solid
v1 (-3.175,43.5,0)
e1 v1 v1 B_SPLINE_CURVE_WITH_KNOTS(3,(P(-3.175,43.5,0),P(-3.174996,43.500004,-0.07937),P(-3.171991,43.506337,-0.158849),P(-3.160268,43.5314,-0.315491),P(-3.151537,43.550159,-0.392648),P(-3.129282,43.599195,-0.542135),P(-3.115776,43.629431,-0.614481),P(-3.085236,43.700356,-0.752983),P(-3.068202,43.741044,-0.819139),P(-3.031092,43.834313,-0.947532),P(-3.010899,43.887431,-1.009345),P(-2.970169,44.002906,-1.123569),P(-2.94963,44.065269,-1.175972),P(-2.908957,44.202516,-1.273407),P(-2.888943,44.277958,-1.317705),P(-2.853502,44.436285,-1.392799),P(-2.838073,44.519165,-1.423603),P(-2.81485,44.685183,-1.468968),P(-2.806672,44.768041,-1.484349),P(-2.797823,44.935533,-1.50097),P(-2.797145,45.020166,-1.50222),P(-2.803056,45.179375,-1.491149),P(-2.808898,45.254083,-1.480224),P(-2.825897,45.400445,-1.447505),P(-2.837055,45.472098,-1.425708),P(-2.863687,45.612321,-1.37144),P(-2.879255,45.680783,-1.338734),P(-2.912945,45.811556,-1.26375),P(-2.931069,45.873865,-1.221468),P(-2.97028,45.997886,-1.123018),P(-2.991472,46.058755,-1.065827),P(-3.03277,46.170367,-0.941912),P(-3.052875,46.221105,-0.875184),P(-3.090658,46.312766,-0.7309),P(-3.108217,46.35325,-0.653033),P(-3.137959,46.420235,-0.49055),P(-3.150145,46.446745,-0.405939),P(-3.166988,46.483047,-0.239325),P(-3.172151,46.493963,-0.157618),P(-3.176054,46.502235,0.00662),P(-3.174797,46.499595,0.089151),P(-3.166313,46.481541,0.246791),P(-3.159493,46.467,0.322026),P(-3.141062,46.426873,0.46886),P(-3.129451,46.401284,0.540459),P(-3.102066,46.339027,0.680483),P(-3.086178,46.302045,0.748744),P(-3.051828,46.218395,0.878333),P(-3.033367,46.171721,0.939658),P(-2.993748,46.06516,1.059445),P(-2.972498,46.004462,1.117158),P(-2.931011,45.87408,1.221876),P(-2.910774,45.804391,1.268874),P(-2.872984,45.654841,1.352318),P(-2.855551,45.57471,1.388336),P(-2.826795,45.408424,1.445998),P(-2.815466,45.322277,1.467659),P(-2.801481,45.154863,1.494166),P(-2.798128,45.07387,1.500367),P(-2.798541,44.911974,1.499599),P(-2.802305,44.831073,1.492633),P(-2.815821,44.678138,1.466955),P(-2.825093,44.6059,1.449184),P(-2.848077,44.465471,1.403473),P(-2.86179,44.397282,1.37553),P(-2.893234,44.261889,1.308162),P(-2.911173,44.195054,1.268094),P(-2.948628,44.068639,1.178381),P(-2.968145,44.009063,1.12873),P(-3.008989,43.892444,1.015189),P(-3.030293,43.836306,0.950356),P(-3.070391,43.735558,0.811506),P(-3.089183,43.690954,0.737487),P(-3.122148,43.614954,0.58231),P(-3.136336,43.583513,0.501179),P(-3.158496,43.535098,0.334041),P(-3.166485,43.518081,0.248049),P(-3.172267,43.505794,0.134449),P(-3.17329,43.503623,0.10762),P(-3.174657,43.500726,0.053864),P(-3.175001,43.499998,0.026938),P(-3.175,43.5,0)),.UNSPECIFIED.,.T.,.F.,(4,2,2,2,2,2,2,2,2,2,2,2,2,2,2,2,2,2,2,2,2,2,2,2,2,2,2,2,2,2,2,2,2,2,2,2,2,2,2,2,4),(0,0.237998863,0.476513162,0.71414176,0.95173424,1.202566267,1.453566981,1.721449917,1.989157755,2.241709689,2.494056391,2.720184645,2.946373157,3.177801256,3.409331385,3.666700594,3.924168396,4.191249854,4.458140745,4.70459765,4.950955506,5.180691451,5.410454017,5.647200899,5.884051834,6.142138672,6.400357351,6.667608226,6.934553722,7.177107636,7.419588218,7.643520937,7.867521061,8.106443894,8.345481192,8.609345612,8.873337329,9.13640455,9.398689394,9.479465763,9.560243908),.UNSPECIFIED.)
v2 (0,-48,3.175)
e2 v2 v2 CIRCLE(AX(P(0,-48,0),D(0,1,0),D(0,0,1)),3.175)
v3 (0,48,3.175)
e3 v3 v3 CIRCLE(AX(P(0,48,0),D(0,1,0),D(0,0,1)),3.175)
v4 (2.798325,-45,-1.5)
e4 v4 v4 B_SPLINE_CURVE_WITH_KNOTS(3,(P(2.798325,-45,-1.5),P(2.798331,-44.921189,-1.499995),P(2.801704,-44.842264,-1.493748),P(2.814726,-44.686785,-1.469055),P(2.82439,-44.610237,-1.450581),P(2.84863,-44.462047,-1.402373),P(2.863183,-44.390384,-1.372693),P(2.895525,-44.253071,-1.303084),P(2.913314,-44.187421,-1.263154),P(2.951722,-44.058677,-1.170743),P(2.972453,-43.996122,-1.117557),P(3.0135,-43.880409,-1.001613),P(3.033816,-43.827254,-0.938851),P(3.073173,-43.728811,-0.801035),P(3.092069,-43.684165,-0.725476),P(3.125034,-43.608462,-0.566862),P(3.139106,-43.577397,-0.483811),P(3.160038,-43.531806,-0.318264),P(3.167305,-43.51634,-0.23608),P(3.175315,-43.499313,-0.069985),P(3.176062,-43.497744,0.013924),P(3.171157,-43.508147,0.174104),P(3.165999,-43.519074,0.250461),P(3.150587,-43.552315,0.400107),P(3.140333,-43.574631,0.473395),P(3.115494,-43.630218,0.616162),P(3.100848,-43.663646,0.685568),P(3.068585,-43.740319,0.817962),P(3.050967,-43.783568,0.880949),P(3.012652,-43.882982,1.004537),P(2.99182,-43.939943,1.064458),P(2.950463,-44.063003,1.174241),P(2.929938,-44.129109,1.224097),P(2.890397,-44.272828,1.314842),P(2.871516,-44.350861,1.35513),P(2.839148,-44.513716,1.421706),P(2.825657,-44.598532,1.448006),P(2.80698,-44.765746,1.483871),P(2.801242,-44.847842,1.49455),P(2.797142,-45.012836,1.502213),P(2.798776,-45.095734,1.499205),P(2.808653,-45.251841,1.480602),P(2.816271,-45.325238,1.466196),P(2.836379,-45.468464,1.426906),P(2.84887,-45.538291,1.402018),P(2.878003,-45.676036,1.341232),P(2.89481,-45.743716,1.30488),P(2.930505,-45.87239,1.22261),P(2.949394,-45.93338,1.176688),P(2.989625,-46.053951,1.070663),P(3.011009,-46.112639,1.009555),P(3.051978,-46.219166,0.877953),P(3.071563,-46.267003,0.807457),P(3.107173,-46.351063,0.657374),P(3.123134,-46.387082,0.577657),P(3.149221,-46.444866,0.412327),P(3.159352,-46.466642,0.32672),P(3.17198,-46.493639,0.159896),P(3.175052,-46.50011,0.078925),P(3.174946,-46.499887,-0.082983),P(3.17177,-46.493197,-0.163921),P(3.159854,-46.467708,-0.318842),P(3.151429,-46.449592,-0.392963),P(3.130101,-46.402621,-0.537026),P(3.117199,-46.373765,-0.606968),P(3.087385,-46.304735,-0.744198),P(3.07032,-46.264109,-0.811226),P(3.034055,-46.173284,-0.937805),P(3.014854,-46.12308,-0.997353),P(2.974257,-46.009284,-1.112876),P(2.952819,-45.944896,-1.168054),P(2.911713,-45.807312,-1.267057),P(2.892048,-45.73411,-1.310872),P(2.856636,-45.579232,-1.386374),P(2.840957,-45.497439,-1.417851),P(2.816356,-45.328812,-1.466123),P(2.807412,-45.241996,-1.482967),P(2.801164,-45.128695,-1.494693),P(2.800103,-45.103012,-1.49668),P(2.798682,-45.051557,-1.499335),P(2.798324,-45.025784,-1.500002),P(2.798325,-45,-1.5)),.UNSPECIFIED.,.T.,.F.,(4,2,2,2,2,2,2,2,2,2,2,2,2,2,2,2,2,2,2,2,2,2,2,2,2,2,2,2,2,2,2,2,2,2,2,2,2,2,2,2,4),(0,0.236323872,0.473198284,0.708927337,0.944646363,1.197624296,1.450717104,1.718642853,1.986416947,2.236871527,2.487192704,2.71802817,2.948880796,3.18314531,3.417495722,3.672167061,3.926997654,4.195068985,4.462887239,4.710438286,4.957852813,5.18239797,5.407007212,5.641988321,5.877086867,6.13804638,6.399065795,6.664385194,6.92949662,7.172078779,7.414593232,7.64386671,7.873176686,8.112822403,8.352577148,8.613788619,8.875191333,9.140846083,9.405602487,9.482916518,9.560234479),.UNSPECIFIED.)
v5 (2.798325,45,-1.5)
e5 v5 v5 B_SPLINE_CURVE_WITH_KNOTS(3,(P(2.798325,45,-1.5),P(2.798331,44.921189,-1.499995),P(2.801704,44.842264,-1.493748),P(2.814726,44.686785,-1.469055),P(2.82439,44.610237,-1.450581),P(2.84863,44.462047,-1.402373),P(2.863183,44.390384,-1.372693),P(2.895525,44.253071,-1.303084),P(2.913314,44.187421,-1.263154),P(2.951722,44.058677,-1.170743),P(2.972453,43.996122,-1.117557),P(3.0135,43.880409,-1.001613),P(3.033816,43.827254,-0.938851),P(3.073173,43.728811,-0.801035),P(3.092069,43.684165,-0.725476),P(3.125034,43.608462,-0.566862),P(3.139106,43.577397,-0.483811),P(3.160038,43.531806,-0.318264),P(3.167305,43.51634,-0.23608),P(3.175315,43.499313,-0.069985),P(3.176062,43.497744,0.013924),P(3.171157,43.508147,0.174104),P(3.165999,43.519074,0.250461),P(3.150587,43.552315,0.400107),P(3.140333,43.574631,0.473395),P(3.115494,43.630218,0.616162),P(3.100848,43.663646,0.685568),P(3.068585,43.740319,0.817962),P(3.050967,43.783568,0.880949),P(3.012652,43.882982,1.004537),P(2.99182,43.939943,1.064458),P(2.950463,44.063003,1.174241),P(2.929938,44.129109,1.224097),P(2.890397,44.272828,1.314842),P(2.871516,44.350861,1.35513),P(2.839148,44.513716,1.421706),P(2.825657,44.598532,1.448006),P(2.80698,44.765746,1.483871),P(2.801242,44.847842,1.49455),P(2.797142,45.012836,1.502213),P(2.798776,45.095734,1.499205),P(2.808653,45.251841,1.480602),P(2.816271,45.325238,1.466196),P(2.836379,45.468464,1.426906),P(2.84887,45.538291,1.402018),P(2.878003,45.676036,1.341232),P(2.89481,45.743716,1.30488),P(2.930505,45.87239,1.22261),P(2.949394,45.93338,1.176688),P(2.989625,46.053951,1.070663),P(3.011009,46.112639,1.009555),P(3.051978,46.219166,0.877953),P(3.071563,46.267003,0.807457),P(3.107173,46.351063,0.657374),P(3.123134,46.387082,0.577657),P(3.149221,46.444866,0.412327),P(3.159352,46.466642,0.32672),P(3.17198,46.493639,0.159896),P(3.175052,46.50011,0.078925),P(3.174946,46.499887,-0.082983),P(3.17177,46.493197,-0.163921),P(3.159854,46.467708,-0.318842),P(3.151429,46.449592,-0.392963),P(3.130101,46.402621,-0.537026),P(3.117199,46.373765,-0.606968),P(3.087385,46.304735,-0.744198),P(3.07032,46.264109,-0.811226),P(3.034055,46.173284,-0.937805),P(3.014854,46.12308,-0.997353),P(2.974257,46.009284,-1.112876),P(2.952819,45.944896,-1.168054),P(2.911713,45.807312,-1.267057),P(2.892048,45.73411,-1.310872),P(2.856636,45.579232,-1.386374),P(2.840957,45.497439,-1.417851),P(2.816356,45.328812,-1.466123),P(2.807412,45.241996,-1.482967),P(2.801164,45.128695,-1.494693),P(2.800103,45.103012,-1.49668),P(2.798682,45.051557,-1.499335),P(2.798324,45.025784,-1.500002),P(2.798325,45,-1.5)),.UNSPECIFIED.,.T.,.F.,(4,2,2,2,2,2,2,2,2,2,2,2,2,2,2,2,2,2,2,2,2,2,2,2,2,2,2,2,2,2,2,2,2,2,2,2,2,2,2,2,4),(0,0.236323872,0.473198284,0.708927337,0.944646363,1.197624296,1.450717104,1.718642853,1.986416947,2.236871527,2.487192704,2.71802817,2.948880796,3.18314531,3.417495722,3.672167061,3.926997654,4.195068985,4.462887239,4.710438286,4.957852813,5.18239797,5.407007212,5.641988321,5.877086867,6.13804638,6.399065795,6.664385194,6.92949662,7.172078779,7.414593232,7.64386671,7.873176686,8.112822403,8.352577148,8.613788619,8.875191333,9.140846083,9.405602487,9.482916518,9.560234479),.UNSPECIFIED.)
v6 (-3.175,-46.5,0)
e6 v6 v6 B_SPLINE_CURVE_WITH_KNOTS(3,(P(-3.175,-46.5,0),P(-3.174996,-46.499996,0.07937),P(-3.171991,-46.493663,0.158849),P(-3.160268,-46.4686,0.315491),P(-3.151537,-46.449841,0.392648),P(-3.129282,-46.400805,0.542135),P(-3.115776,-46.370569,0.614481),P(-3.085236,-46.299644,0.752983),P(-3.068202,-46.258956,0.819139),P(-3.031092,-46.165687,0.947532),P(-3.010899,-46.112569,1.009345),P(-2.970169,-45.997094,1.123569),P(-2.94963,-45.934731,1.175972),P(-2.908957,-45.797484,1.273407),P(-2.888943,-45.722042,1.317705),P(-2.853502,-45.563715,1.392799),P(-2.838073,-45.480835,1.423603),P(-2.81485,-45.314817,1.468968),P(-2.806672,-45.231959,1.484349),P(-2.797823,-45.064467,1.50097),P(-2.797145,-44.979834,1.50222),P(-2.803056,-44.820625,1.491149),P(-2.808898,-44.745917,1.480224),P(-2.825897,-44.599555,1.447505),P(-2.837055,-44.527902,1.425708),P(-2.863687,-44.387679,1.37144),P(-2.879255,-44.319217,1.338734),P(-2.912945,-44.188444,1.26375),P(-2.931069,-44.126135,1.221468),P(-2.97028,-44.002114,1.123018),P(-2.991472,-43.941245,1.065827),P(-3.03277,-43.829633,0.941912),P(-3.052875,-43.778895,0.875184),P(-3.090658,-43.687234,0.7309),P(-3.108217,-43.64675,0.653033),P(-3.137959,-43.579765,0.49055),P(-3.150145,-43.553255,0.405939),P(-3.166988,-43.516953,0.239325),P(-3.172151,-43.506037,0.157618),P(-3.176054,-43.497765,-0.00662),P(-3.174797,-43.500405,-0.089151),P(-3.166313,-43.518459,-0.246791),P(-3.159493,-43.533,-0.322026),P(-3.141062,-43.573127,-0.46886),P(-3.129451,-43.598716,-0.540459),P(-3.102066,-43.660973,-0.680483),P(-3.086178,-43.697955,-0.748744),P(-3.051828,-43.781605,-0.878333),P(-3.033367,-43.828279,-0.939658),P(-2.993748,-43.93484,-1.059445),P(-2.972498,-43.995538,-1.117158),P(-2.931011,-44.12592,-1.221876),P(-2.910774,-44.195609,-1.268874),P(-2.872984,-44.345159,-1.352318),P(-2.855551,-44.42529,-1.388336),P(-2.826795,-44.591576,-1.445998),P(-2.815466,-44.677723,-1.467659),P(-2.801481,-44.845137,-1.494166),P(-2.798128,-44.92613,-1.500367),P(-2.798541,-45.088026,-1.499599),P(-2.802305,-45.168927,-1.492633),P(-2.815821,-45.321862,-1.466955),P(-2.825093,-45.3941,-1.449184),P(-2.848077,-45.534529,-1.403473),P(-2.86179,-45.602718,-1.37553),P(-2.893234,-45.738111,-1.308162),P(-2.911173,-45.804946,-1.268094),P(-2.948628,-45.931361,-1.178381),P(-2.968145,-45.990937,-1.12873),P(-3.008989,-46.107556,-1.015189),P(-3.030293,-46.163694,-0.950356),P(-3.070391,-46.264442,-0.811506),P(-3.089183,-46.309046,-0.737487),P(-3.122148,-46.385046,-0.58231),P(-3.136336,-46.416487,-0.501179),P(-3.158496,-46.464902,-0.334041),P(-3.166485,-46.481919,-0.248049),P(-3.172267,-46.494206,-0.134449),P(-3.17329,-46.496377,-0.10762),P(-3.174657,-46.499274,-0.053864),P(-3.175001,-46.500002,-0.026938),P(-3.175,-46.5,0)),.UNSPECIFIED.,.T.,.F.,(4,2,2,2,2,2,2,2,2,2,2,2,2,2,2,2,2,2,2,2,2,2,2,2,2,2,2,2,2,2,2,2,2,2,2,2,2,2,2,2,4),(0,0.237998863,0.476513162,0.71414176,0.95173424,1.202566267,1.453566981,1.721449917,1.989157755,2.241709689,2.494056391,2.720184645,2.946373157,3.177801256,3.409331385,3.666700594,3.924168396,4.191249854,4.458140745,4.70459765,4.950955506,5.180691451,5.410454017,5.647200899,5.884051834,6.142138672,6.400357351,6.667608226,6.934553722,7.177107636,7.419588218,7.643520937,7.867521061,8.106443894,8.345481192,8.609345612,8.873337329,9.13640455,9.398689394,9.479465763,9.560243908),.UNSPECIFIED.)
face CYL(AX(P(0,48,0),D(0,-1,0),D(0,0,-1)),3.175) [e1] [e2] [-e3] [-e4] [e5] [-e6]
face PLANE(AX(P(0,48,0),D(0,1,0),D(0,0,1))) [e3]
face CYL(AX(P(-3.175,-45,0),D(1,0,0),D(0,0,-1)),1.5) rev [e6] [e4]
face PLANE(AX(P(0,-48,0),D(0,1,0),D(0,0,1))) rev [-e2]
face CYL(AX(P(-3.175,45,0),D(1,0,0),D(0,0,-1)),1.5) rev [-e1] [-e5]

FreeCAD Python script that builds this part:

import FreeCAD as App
import Part
import Sketcher

V = App.Vector

doc = App.newDocument("Part")
params = doc.addObject("Spreadsheet::Sheet", "Params")
for row, (alias, value) in enumerate([
    ("sketch1_diameter", "6.35 mm"),
    ("pad1_length", "96 mm"),
    ("sketch2_diameter", "3 mm"),
    ("pocket1_length", "8.35 mm"),
], start=1):
    params.set(f"A{row}", alias)
    params.set(f"B{row}", "=" + value)
    params.setAlias(f"B{row}", alias)

body = doc.addObject("PartDesign::Body", "Body")

# Sketch on XZ plane
sketch1 = body.newObject("Sketcher::SketchObject", "Sketch")
sketch1.AttachmentSupport = (doc.getObject("XZ_Plane"), [""])
sketch1.MapMode = "FlatFace"
sketch1.addGeometry(Part.Circle(V(0, 0, 0), V(0, 0, 1), 3.2), False)
sketch1.addConstraint(Sketcher.Constraint("Coincident", 0, 3, -1, 1))
sketch1.addConstraint(Sketcher.Constraint("Diameter", 0, 6.35))
sketch1.setExpression("Constraints[1]", "Params.sketch1_diameter")
pad1 = body.newObject("PartDesign::Pad", "Pad")
pad1.Profile = sketch1
pad1.setExpression("Length", "Params.pad1_length")
pad1.Midplane = True

# Sketch on YZ plane
sketch2 = body.newObject("Sketcher::SketchObject", "Sketch001")
sketch2.AttachmentSupport = (doc.getObject("YZ_Plane"), [""])
sketch2.MapMode = "FlatFace"
sketch2.addGeometry(Part.Circle(V(45, 0, 0), V(0, 0, 1), 1.5), False)
sketch2.addConstraint(Sketcher.Constraint("PointOnObject", 0, 3, -1))
sketch2.addConstraint(Sketcher.Constraint("Diameter", 0, 3.0))
sketch2.addConstraint(Sketcher.Constraint("DistanceX", -1, 1, 0, 3, 45.0))
sketch2.setExpression("Constraints[1]", "Params.sketch2_diameter")
pocket1 = body.newObject("PartDesign::Pocket", "Pocket")
pocket1.Profile = sketch2
pocket1.setExpression("Length", "Params.pocket1_length")
pocket1.Midplane = True
doc.recompute()

mirrored = body.newObject("PartDesign::Mirrored", "Mirrored")
mirrored.Originals = [pocket1]
mirrored.MirrorPlane = (doc.getObject("XZ_Plane"), [""])
body.Tip = mirrored

doc.recompute()
